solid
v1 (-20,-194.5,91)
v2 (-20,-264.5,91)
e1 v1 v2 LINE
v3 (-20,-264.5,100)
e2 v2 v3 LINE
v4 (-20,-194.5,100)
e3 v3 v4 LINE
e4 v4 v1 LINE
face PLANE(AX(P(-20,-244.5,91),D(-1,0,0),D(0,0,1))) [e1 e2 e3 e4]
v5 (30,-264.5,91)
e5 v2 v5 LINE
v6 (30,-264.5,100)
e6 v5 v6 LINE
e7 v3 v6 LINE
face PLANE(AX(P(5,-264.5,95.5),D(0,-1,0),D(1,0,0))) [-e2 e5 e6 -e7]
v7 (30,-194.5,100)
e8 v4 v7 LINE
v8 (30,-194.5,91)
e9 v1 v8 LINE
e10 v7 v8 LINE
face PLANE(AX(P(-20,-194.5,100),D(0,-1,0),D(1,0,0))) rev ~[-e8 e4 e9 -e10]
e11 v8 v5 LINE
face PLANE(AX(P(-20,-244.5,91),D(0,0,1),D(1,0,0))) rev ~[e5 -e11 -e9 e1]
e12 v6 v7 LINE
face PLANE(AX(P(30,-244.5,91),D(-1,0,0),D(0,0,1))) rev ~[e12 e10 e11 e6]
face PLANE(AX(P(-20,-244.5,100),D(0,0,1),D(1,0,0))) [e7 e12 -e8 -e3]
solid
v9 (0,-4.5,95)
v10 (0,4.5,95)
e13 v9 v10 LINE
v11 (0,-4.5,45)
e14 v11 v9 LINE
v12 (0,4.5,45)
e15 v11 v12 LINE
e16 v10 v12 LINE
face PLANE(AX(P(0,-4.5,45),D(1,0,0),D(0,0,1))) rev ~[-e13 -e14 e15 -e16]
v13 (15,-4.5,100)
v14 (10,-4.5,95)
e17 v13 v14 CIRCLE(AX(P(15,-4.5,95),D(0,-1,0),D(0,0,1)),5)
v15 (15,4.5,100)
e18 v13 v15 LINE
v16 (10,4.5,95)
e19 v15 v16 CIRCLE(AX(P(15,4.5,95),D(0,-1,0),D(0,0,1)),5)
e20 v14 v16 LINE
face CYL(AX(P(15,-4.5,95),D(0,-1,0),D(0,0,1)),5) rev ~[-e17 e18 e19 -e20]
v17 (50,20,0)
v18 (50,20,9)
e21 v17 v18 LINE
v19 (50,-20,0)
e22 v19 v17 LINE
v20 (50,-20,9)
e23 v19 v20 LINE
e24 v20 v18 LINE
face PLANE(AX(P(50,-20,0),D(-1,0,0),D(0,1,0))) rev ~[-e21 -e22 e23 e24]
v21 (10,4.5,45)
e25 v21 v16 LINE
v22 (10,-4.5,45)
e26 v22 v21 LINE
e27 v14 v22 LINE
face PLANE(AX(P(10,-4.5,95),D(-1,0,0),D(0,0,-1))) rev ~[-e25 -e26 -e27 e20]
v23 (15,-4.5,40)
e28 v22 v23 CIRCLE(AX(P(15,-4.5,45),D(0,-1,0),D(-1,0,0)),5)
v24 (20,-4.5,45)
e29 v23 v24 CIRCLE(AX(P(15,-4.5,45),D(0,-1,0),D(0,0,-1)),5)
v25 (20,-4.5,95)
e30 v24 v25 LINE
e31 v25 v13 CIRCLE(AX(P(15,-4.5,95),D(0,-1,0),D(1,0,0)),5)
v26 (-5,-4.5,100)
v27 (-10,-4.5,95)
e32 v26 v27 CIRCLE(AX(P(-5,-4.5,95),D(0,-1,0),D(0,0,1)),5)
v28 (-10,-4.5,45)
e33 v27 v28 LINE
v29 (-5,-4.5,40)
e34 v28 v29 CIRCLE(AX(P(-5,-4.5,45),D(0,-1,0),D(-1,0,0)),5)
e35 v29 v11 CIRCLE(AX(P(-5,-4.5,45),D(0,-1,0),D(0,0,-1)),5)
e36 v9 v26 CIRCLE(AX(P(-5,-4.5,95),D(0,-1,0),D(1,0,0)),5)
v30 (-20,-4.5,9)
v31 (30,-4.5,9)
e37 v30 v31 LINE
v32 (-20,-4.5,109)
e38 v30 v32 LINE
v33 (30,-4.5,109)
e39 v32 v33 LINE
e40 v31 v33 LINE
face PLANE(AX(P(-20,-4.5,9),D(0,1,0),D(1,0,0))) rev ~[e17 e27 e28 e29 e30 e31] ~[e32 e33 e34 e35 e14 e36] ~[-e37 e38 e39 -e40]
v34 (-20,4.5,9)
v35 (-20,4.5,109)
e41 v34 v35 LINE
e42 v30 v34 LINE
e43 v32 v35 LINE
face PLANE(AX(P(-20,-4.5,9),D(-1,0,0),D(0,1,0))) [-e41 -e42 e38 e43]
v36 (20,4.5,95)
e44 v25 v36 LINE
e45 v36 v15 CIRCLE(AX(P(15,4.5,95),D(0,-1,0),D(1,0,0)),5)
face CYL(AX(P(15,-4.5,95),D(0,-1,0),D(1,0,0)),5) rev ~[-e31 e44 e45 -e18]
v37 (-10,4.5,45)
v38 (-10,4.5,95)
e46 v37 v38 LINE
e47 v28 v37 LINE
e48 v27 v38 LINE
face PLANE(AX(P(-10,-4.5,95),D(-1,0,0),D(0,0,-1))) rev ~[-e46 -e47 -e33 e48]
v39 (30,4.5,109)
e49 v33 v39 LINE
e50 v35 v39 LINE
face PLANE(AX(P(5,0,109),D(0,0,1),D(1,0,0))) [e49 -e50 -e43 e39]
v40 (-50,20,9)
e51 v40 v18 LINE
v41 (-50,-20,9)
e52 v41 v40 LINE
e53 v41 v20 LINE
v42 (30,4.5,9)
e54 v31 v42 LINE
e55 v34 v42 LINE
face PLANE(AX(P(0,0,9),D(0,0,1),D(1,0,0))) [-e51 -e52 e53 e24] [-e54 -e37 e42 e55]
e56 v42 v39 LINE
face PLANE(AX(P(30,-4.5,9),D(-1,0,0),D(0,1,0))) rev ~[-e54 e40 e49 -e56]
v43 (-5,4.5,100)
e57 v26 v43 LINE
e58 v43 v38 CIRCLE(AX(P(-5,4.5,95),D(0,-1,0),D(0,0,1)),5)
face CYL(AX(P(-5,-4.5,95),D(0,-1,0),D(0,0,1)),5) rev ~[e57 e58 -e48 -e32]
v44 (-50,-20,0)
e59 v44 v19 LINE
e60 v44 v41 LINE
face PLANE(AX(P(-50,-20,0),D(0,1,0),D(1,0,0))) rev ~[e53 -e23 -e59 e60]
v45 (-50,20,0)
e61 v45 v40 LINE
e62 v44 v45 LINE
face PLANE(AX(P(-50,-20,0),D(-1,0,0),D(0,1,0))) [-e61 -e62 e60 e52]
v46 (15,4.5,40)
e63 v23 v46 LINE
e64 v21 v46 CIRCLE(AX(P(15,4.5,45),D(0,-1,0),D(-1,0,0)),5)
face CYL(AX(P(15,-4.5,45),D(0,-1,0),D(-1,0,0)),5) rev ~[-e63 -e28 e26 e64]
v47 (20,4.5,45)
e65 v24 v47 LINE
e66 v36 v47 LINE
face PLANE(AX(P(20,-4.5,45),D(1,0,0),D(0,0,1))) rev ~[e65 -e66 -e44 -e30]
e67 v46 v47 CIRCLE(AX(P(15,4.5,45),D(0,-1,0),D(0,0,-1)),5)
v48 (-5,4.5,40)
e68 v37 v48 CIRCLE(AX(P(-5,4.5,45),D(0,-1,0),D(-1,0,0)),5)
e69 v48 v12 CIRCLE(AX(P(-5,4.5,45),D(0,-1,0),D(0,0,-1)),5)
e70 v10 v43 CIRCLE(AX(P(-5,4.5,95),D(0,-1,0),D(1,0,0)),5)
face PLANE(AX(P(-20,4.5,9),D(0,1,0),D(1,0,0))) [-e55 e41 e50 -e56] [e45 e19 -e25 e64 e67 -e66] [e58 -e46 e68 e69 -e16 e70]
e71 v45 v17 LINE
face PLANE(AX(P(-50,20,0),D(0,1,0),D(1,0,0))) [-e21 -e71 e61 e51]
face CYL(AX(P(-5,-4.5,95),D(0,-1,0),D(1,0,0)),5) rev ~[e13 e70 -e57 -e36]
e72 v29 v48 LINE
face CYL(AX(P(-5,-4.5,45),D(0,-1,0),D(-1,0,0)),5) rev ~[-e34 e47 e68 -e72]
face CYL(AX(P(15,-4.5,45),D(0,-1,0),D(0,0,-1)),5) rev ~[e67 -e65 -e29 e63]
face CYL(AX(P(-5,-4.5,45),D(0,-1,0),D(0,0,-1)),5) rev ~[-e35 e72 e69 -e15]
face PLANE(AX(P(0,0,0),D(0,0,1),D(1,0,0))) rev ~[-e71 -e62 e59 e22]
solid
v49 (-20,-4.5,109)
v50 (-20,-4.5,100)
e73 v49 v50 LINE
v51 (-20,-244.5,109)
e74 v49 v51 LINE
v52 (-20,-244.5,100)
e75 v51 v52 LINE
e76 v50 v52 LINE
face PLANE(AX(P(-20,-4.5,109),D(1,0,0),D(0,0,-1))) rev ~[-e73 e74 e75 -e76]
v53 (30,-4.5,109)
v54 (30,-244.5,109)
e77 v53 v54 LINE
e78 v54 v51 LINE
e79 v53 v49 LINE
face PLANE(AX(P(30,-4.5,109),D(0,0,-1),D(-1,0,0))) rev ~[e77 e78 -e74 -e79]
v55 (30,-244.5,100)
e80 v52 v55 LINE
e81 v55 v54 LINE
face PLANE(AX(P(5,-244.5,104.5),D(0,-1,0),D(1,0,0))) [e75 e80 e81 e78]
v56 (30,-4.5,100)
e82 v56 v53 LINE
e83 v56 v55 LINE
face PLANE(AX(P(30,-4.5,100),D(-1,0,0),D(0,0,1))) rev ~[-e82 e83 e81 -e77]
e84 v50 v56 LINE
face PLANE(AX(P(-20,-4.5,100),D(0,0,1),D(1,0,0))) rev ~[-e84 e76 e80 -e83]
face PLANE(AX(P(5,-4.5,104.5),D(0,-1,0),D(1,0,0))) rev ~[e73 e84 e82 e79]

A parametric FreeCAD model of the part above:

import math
import FreeCAD as App
import Part
import Sketcher
Q = App.Units.Quantity

doc = App.newDocument("Part")
body = doc.addObject("PartDesign::Body", "Body")

# Sketch on XY plane
sketch1 = body.newObject("Sketcher::SketchObject", "Sketch")
sketch1.AttachmentSupport = (doc.getObject("XY_Plane"), [""])
sketch1.MapMode = "FlatFace"
sketch1.addGeometry([
    Part.LineSegment(App.Vector(-50, 20, 0), App.Vector(-50, -20, 0)),
    Part.LineSegment(App.Vector(-50, -20, 0), App.Vector(50, -20, 0)),
    Part.LineSegment(App.Vector(50, -20, 0), App.Vector(50, 20, 0)),
    Part.LineSegment(App.Vector(50, 20, 0), App.Vector(-50, 20, 0)),
], False)
sketch1.addConstraint([
    Sketcher.Constraint("Coincident", 0, 2, 1, 1),
    Sketcher.Constraint("Coincident", 1, 2, 2, 1),
    Sketcher.Constraint("Coincident", 2, 2, 3, 1),
    Sketcher.Constraint("Coincident", 3, 2, 0, 1),
    Sketcher.Constraint("Vertical", 0),
    Sketcher.Constraint("Horizontal", 1),
    Sketcher.Constraint("Vertical", 2),
    Sketcher.Constraint("Horizontal", 3),
    Sketcher.Constraint("Symmetric", 0, 2, 2, 2, -1, 1),
    Sketcher.Constraint("DistanceX", 1, 1, 1, 2, Q("100 mm")),
    Sketcher.Constraint("DistanceY", 0, 2, 0, 1, Q("40 mm")),
])
pad1 = body.newObject("PartDesign::Pad", "Pad")
pad1.Profile = sketch1
pad1.Length = 9

# Sketch on XY plane
sketch2 = body.newObject("Sketcher::SketchObject", "Sketch001")
sketch2.AttachmentSupport = (doc.getObject("XY_Plane"), [""])
sketch2.MapMode = "FlatFace"
sketch2.AttachmentOffset = App.Placement(App.Vector(0, 0, 9), App.Rotation())
sketch2.addGeometry([
    Part.LineSegment(App.Vector(-20, 4, 0), App.Vector(-20, -4, 0)),
    Part.LineSegment(App.Vector(-20, -4, 0), App.Vector(30, -4, 0)),
    Part.LineSegment(App.Vector(30, -4, 0), App.Vector(30, 4, 0)),
    Part.LineSegment(App.Vector(30, 4, 0), App.Vector(-20, 4, 0)),
], False)
sketch2.addConstraint([
    Sketcher.Constraint("Coincident", 0, 2, 1, 1),
    Sketcher.Constraint("Coincident", 1, 2, 2, 1),
    Sketcher.Constraint("Coincident", 2, 2, 3, 1),
    Sketcher.Constraint("Coincident", 3, 2, 0, 1),
    Sketcher.Constraint("Vertical", 0),
    Sketcher.Constraint("Horizontal", 1),
    Sketcher.Constraint("Vertical", 2),
    Sketcher.Constraint("Horizontal", 3),
    Sketcher.Constraint("DistanceX", 1, 1, 1, 2, Q("50 mm")),
    Sketcher.Constraint("DistanceY", 0, 2, 0, 1, Q("9 mm")),
    Sketcher.Constraint("DistanceX", 0, 2, -1, 1, Q("20 mm")),
    Sketcher.Constraint("DistanceY", 0, 2, -1, 1, Q("4.5 mm")),
])
pad2 = body.newObject("PartDesign::Pad", "Pad001")
pad2.Profile = sketch2
pad2.Length = 100

# Sketch on XZ plane
sketch3 = body.newObject("Sketcher::SketchObject", "Sketch002")
sketch3.AttachmentSupport = (doc.getObject("XZ_Plane"), [""])
sketch3.MapMode = "FlatFace"
sketch3.AttachmentOffset = App.Placement(App.Vector(0, 0, 4.5), App.Rotation())
sketch3.addGeometry([
    Part.ArcOfCircle(Part.Circle(App.Vector(-5, 95, 0), App.Vector(0, 0, 1), 5), math.radians(90), math.radians(180)),  # 0
    Part.LineSegment(App.Vector(-10, 95, 0), App.Vector(-10, 45, 0)),  # 1
    Part.ArcOfCircle(Part.Circle(App.Vector(-5, 45, 0), App.Vector(0, 0, 1), 5), math.radians(180), math.radians(270)),  # 2
    Part.ArcOfCircle(Part.Circle(App.Vector(-5, 45, 0), App.Vector(0, 0, 1), 5), math.radians(-90), math.radians(0)),  # 3
    Part.LineSegment(App.Vector(0, 45, 0), App.Vector(0, 95, 0)),  # 4
    Part.ArcOfCircle(Part.Circle(App.Vector(-5, 95, 0), App.Vector(0, 0, 1), 5), math.radians(0), math.radians(90)),  # 5
    Part.ArcOfCircle(Part.Circle(App.Vector(15, 95, 0), App.Vector(0, 0, 1), 5), math.radians(90), math.radians(180)),  # 6
    Part.LineSegment(App.Vector(10, 95, 0), App.Vector(10, 45, 0)),  # 7
    Part.ArcOfCircle(Part.Circle(App.Vector(15, 45, 0), App.Vector(0, 0, 1), 5), math.radians(180), math.radians(270)),  # 8
    Part.ArcOfCircle(Part.Circle(App.Vector(15, 45, 0), App.Vector(0, 0, 1), 5), math.radians(-90), math.radians(0)),  # 9
    Part.LineSegment(App.Vector(20, 45, 0), App.Vector(20, 95, 0)),  # 10
    Part.ArcOfCircle(Part.Circle(App.Vector(15, 95, 0), App.Vector(0, 0, 1), 5), math.radians(0), math.radians(90)),  # 11
], False)
sketch3.addConstraint([
    Sketcher.Constraint("Tangent", 0, 2, 1, 1),
    Sketcher.Constraint("Tangent", 1, 2, 2, 1),
    Sketcher.Constraint("Tangent", 2, 2, 3, 1),
    Sketcher.Constraint("Tangent", 3, 2, 4, 1),
    Sketcher.Constraint("Tangent", 4, 2, 5, 1),
    Sketcher.Constraint("Tangent", 5, 2, 0, 1),
    Sketcher.Constraint("Tangent", 6, 2, 7, 1),
    Sketcher.Constraint("Tangent", 7, 2, 8, 1),
    Sketcher.Constraint("Tangent", 8, 2, 9, 1),
    Sketcher.Constraint("Tangent", 9, 2, 10, 1),
    Sketcher.Constraint("Tangent", 10, 2, 11, 1),
    Sketcher.Constraint("Tangent", 11, 2, 6, 1),
    Sketcher.Constraint("Vertical", 1),
    Sketcher.Constraint("Vertical", 4),
    Sketcher.Constraint("Vertical", 7),
    Sketcher.Constraint("Vertical", 10),
    Sketcher.Constraint("Equal", 0, 2),
    Sketcher.Constraint("Equal", 2, 3),
    Sketcher.Constraint("Equal", 5, 6),
    Sketcher.Constraint("Equal", 6, 8),
    Sketcher.Constraint("Equal", 8, 9),
    Sketcher.Constraint("Symmetric", 0, 2, 6, 2, -2),
    Sketcher.Constraint("PointOnObject", 3, 2, -2),
    Sketcher.Constraint("Horizontal", 3, 3, 8, 3),
    Sketcher.Constraint("Vertical", 5, 3, 2, 2),
    Sketcher.Constraint("Vertical", 2, 2, 5, 2),
    Sketcher.Constraint("Vertical", 11, 3, 8, 2),
    Sketcher.Constraint("Vertical", 8, 2, 11, 2),
    Sketcher.Constraint("Radius", 0, Q("5 mm")),
    Sketcher.Constraint("DistanceY", 1, 2, 1, 1, Q("50 mm")),
    Sketcher.Constraint("DistanceY", -1, 1, 0, 3, Q("95 mm")),
])
pocket1 = body.newObject("PartDesign::Pocket", "Pocket")
pocket1.Profile = sketch3
pocket1.Length = 18
body2 = doc.addObject("PartDesign::Body", "Body001")

# Sketch on XZ plane
sketch4 = body2.newObject("Sketcher::SketchObject", "Sketch003")
sketch4.AttachmentSupport = (doc.getObject("XZ_Plane001"), [""])
sketch4.MapMode = "FlatFace"
sketch4.AttachmentOffset = App.Placement(App.Vector(0, 0, 4.5), App.Rotation())
sketch4.addGeometry([
    Part.LineSegment(App.Vector(30, 100, 0), App.Vector(30, 109, 0)),
    Part.LineSegment(App.Vector(30, 109, 0), App.Vector(-20, 109, 0)),
    Part.LineSegment(App.Vector(-20, 109, 0), App.Vector(-20, 100, 0)),
    Part.LineSegment(App.Vector(-20, 100, 0), App.Vector(30, 100, 0)),
], False)
sketch4.addConstraint([
    Sketcher.Constraint("Coincident", 0, 2, 1, 1),
    Sketcher.Constraint("Coincident", 1, 2, 2, 1),
    Sketcher.Constraint("Coincident", 2, 2, 3, 1),
    Sketcher.Constraint("Coincident", 3, 2, 0, 1),
    Sketcher.Constraint("Vertical", 0),
    Sketcher.Constraint("Horizontal", 1),
    Sketcher.Constraint("Vertical", 2),
    Sketcher.Constraint("Horizontal", 3),
    Sketcher.Constraint("DistanceX", 1, 2, 1, 1, Q("50 mm")),
    Sketcher.Constraint("DistanceY", 0, 1, 0, 2, Q("9 mm")),
    Sketcher.Constraint("DistanceX", -1, 1, 0, 2, Q("30 mm")),
    Sketcher.Constraint("DistanceY", -1, 1, 0, 2, Q("109 mm")),
])
pad3 = body2.newObject("PartDesign::Pad", "Pad002")
pad3.Profile = sketch4
pad3.Length = 240
body3 = doc.addObject("PartDesign::Body", "Body002")

# Sketch on XY plane
sketch5 = body3.newObject("Sketcher::SketchObject", "Sketch004")
sketch5.AttachmentSupport = (doc.getObject("XY_Plane002"), [""])
sketch5.MapMode = "FlatFace"
sketch5.AttachmentOffset = App.Placement(App.Vector(0, 0, 100), App.Rotation())
sketch5.addGeometry([
    Part.LineSegment(App.Vector(-20, -244, 0), App.Vector(-20, -194, 0)),
    Part.LineSegment(App.Vector(-20, -194, 0), App.Vector(30, -194, 0)),
    Part.LineSegment(App.Vector(30, -194, 0), App.Vector(30, -244, 0)),
    Part.LineSegment(App.Vector(30, -244, 0), App.Vector(-20, -244, 0)),
], False)
sketch5.addConstraint([
    Sketcher.Constraint("Coincident", 0, 2, 1, 1),
    Sketcher.Constraint("Coincident", 1, 2, 2, 1),
    Sketcher.Constraint("Coincident", 2, 2, 3, 1),
    Sketcher.Constraint("Coincident", 3, 2, 0, 1),
    Sketcher.Constraint("Vertical", 0),
    Sketcher.Constraint("Horizontal", 1),
    Sketcher.Constraint("Vertical", 2),
    Sketcher.Constraint("Horizontal", 3),
    Sketcher.Constraint("Equal", 3, 0),
    Sketcher.Constraint("DistanceX", 1, 1, 1, 2, Q("50 mm")),
    Sketcher.Constraint("DistanceX", 0, 2, -1, 1, Q("20 mm")),
    Sketcher.Constraint("DistanceY", 0, 2, -1, 1, Q("194.5 mm")),
])
pad4 = body3.newObject("PartDesign::Pad", "Pad003")
pad4.Profile = sketch5
pad4.Length = 9
pad4.Reversed = True

# Sketch on XZ plane
sketch6 = body3.newObject("Sketcher::SketchObject", "Sketch005")
sketch6.AttachmentSupport = (doc.getObject("XZ_Plane002"), [""])
sketch6.MapMode = "FlatFace"
sketch6.AttachmentOffset = App.Placement(App.Vector(0, 0, 244.5), App.Rotation())
sketch6.addGeometry([
    Part.LineSegment(App.Vector(-20, 100, 0), App.Vector(-20, 91, 0)),
    Part.LineSegment(App.Vector(-20, 91, 0), App.Vector(30, 91, 0)),
    Part.LineSegment(App.Vector(30, 91, 0), App.Vector(30, 100, 0)),
    Part.LineSegment(App.Vector(30, 100, 0), App.Vector(-20, 100, 0)),
], False)
sketch6.addConstraint([
    Sketcher.Constraint("Coincident", 0, 2, 1, 1),
    Sketcher.Constraint("Coincident", 1, 2, 2, 1),
    Sketcher.Constraint("Coincident", 2, 2, 3, 1),
    Sketcher.Constraint("Coincident", 3, 2, 0, 1),
    Sketcher.Constraint("Vertical", 0),
    Sketcher.Constraint("Horizontal", 1),
    Sketcher.Constraint("Vertical", 2),
    Sketcher.Constraint("Horizontal", 3),
    Sketcher.Constraint("DistanceX", 1, 1, 1, 2, Q("50 mm")),
    Sketcher.Constraint("DistanceY", 0, 2, 0, 1, Q("9 mm")),
    Sketcher.Constraint("DistanceX", 0, 2, -1, 1, Q("20 mm")),
    Sketcher.Constraint("DistanceY", -1, 1, 0, 2, Q("91 mm")),
])
pad5 = body3.newObject("PartDesign::Pad", "Pad004")
pad5.Profile = sketch6
pad5.Length = 20

doc.recompute()
